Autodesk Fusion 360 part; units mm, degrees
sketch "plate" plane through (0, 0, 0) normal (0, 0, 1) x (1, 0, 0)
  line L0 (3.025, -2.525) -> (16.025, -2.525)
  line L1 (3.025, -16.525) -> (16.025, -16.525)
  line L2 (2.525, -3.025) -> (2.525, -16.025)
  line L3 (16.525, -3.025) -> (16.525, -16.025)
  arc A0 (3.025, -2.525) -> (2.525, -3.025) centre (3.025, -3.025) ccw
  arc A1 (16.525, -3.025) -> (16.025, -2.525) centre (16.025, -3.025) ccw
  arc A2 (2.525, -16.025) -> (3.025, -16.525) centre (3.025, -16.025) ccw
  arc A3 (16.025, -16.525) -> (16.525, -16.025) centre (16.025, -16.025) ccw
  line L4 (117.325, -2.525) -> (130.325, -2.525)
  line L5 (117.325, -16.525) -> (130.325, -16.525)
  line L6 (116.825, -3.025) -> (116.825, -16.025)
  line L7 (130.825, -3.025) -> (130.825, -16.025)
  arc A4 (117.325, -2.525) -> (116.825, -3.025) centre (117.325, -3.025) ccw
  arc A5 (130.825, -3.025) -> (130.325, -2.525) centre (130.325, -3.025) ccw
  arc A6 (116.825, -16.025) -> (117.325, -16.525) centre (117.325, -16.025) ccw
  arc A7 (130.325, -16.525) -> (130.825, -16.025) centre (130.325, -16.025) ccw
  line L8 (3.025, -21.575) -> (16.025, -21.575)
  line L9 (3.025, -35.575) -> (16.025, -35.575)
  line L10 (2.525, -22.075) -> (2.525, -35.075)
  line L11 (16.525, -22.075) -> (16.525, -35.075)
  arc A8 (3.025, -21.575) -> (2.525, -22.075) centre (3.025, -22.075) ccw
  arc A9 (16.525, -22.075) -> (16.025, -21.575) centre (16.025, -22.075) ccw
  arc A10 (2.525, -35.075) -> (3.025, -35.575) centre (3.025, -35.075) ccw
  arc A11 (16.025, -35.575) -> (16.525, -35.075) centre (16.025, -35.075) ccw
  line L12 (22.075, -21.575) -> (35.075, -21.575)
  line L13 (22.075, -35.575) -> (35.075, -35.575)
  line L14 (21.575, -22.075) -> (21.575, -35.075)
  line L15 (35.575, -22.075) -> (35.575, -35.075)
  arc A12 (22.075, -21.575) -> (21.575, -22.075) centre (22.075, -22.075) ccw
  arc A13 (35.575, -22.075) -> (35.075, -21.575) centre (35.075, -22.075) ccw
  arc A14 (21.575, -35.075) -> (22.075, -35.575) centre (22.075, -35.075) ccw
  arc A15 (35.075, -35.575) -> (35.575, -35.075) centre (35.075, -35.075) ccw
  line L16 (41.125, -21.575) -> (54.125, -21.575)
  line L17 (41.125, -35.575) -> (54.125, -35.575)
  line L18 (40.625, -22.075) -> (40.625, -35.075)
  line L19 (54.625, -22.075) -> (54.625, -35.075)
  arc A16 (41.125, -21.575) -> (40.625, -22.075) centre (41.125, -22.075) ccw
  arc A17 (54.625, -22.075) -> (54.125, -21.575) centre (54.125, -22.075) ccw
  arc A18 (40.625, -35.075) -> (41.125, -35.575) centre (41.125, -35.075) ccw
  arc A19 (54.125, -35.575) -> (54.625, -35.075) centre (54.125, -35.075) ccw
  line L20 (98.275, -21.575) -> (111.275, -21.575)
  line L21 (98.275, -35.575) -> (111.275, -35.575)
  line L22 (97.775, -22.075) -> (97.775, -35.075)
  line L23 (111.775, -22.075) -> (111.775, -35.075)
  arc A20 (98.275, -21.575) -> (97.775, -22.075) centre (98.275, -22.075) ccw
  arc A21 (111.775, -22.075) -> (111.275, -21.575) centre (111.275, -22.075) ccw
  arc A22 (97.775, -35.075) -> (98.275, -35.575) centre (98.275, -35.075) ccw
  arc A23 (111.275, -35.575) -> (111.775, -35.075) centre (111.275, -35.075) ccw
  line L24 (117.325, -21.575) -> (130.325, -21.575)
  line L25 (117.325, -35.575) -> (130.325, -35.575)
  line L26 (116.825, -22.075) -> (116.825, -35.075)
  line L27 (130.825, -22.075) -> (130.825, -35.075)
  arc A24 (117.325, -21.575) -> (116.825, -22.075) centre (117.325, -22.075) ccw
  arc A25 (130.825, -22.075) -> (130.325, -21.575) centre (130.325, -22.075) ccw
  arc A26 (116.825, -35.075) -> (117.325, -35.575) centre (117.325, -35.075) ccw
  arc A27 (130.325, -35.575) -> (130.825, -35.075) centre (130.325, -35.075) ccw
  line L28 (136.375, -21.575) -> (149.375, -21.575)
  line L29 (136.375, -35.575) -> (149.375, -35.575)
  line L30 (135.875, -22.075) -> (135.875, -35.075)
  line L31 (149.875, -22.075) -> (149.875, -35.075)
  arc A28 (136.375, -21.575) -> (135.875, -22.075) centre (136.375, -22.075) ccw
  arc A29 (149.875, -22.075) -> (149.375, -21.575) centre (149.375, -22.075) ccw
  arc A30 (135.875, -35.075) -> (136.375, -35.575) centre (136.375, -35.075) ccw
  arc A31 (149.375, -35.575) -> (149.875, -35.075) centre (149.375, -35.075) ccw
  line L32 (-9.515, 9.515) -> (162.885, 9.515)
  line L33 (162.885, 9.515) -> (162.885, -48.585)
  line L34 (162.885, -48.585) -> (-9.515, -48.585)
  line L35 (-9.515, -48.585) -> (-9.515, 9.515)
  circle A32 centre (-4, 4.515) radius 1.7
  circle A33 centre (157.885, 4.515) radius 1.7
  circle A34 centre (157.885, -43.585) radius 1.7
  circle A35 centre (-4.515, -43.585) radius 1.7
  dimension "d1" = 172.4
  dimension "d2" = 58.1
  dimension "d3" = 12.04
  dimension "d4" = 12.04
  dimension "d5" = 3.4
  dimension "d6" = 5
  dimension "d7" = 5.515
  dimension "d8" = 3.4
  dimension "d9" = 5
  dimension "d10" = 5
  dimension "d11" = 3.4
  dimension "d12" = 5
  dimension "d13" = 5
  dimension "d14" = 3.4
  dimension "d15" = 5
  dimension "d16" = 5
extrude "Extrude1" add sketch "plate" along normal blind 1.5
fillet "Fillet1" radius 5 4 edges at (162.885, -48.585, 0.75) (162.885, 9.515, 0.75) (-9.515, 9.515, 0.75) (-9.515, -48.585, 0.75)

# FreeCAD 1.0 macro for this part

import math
import FreeCAD as App
import Part
import Sketcher

V = App.Vector


def edges_at(feature, points):
    """Names of the edges that pass closest to the given points."""
    edges = feature.Shape.Edges
    near = lambda p: min(range(len(edges)), key=lambda i: edges[i].distToShape(Part.Vertex(*p))[0])
    return sorted({f"Edge{near(p) + 1}" for p in points})


def add_polygon(sketch, points):
    """Adds a closed chain of lines whose ends are joined by coincident constraints."""
    first, n = sketch.GeometryCount, len(points)
    for a, b in zip(points, points[1:] + points[:1]):
        sketch.addGeometry(Part.LineSegment(App.Vector(*a, 0), App.Vector(*b, 0)), False)
    for i in range(n):
        sketch.addConstraint(Sketcher.Constraint("Coincident", first + i, 2, first + (i + 1) % n, 1))

doc = App.newDocument("Part")
body = doc.addObject("PartDesign::Body", "Body")

# Sketch on XY plane
sketch1 = body.newObject("Sketcher::SketchObject", "Sketch")
sketch1.AttachmentSupport = (doc.getObject("XY_Plane"), [""])
sketch1.MapMode = "FlatFace"
add_polygon(sketch1, [(162.9, 9.5), (-9.5, 9.5), (-9.5, -48.6), (162.9, -48.6)])  # lines 0-3
sketch1.addGeometry(Part.Circle(V(-4.5, -43.6, 0), V(0, 0, 1), 1.7), False)  # 4
sketch1.addGeometry(Part.ArcOfCircle(Part.Circle(V(3, -22.1, 0), V(0, 0, 1), 0.5), math.radians(90), math.radians(180)), False)  # 5
sketch1.addGeometry(Part.LineSegment(V(3, -21.6, 0), V(16, -21.6, 0)), False)  # 6
sketch1.addGeometry(Part.ArcOfCircle(Part.Circle(V(16, -22.1, 0), V(0, 0, 1), 0.5), math.radians(0), math.radians(90)), False)  # 7
sketch1.addGeometry(Part.LineSegment(V(16.5, -22.1, 0), V(16.5, -35.1, 0)), False)  # 8
sketch1.addGeometry(Part.ArcOfCircle(Part.Circle(V(16, -35.1, 0), V(0, 0, 1), 0.5), math.radians(-90), math.radians(0)), False)  # 9
sketch1.addGeometry(Part.LineSegment(V(16, -35.6, 0), V(3, -35.6, 0)), False)  # 10
sketch1.addGeometry(Part.ArcOfCircle(Part.Circle(V(3, -35.1, 0), V(0, 0, 1), 0.5), math.radians(180), math.radians(270)), False)  # 11
sketch1.addGeometry(Part.LineSegment(V(2.5, -35.1, 0), V(2.5, -22.1, 0)), False)  # 12
sketch1.addGeometry(Part.ArcOfCircle(Part.Circle(V(22.1, -22.1, 0), V(0, 0, 1), 0.5), math.radians(90), math.radians(180)), False)  # 13
sketch1.addGeometry(Part.LineSegment(V(22.1, -21.6, 0), V(35.1, -21.6, 0)), False)  # 14
sketch1.addGeometry(Part.ArcOfCircle(Part.Circle(V(35.1, -22.1, 0), V(0, 0, 1), 0.5), math.radians(0), math.radians(90)), False)  # 15
sketch1.addGeometry(Part.LineSegment(V(35.6, -22.1, 0), V(35.6, -35.1, 0)), False)  # 16
sketch1.addGeometry(Part.ArcOfCircle(Part.Circle(V(35.1, -35.1, 0), V(0, 0, 1), 0.5), math.radians(-90), math.radians(0)), False)  # 17
sketch1.addGeometry(Part.LineSegment(V(35.1, -35.6, 0), V(22.1, -35.6, 0)), False)  # 18
sketch1.addGeometry(Part.ArcOfCircle(Part.Circle(V(22.1, -35.1, 0), V(0, 0, 1), 0.5), math.radians(180), math.radians(270)), False)  # 19
sketch1.addGeometry(Part.LineSegment(V(21.6, -35.1, 0), V(21.6, -22.1, 0)), False)  # 20
sketch1.addGeometry(Part.ArcOfCircle(Part.Circle(V(41.1, -22.1, 0), V(0, 0, 1), 0.5), math.radians(90), math.radians(180)), False)  # 21
sketch1.addGeometry(Part.LineSegment(V(41.1, -21.6, 0), V(54.1, -21.6, 0)), False)  # 22
sketch1.addGeometry(Part.ArcOfCircle(Part.Circle(V(54.1, -22.1, 0), V(0, 0, 1), 0.5), math.radians(0), math.radians(90)), False)  # 23
sketch1.addGeometry(Part.LineSegment(V(54.6, -22.1, 0), V(54.6, -35.1, 0)), False)  # 24
sketch1.addGeometry(Part.ArcOfCircle(Part.Circle(V(54.1, -35.1, 0), V(0, 0, 1), 0.5), math.radians(-90), math.radians(0)), False)  # 25
sketch1.addGeometry(Part.LineSegment(V(54.1, -35.6, 0), V(41.1, -35.6, 0)), False)  # 26
sketch1.addGeometry(Part.ArcOfCircle(Part.Circle(V(41.1, -35.1, 0), V(0, 0, 1), 0.5), math.radians(180), math.radians(270)), False)  # 27
sketch1.addGeometry(Part.LineSegment(V(40.6, -35.1, 0), V(40.6, -22.1, 0)), False)  # 28
sketch1.addGeometry(Part.Circle(V(157.9, -43.6, 0), V(0, 0, 1), 1.7), False)  # 29
sketch1.addGeometry(Part.ArcOfCircle(Part.Circle(V(98.3, -22.1, 0), V(0, 0, 1), 0.5), math.radians(90), math.radians(180)), False)  # 30
sketch1.addGeometry(Part.LineSegment(V(98.3, -21.6, 0), V(111.3, -21.6, 0)), False)  # 31
sketch1.addGeometry(Part.ArcOfCircle(Part.Circle(V(111.3, -22.1, 0), V(0, 0, 1), 0.5), math.radians(0), math.radians(90)), False)  # 32
sketch1.addGeometry(Part.LineSegment(V(111.8, -22.1, 0), V(111.8, -35.1, 0)), False)  # 33
sketch1.addGeometry(Part.ArcOfCircle(Part.Circle(V(111.3, -35.1, 0), V(0, 0, 1), 0.5), math.radians(-90), math.radians(0)), False)  # 34
sketch1.addGeometry(Part.LineSegment(V(111.3, -35.6, 0), V(98.3, -35.6, 0)), False)  # 35
sketch1.addGeometry(Part.ArcOfCircle(Part.Circle(V(98.3, -35.1, 0), V(0, 0, 1), 0.5), math.radians(180), math.radians(270)), False)  # 36
sketch1.addGeometry(Part.LineSegment(V(97.8, -35.1, 0), V(97.8, -22.1, 0)), False)  # 37
sketch1.addGeometry(Part.ArcOfCircle(Part.Circle(V(117.3, -22.1, 0), V(0, 0, 1), 0.5), math.radians(90), math.radians(180)), False)  # 38
sketch1.addGeometry(Part.LineSegment(V(117.3, -21.6, 0), V(130.3, -21.6, 0)), False)  # 39
sketch1.addGeometry(Part.ArcOfCircle(Part.Circle(V(130.3, -22.1, 0), V(0, 0, 1), 0.5), math.radians(0), math.radians(90)), False)  # 40
sketch1.addGeometry(Part.LineSegment(V(130.8, -22.1, 0), V(130.8, -35.1, 0)), False)  # 41
sketch1.addGeometry(Part.ArcOfCircle(Part.Circle(V(130.3, -35.1, 0), V(0, 0, 1), 0.5), math.radians(-90), math.radians(0)), False)  # 42
sketch1.addGeometry(Part.LineSegment(V(130.3, -35.6, 0), V(117.3, -35.6, 0)), False)  # 43
sketch1.addGeometry(Part.ArcOfCircle(Part.Circle(V(117.3, -35.1, 0), V(0, 0, 1), 0.5), math.radians(180), math.radians(270)), False)  # 44
sketch1.addGeometry(Part.LineSegment(V(116.8, -35.1, 0), V(116.8, -22.1, 0)), False)  # 45
sketch1.addGeometry(Part.ArcOfCircle(Part.Circle(V(136.4, -22.1, 0), V(0, 0, 1), 0.5), math.radians(90), math.radians(180)), False)  # 46
sketch1.addGeometry(Part.LineSegment(V(136.4, -21.6, 0), V(149.4, -21.6, 0)), False)  # 47
sketch1.addGeometry(Part.ArcOfCircle(Part.Circle(V(149.4, -22.1, 0), V(0, 0, 1), 0.5), math.radians(0), math.radians(90)), False)  # 48
sketch1.addGeometry(Part.LineSegment(V(149.9, -22.1, 0), V(149.9, -35.1, 0)), False)  # 49
sketch1.addGeometry(Part.ArcOfCircle(Part.Circle(V(149.4, -35.1, 0), V(0, 0, 1), 0.5), math.radians(-90), math.radians(0)), False)  # 50
sketch1.addGeometry(Part.LineSegment(V(149.4, -35.6, 0), V(136.4, -35.6, 0)), False)  # 51
sketch1.addGeometry(Part.ArcOfCircle(Part.Circle(V(136.4, -35.1, 0), V(0, 0, 1), 0.5), math.radians(180), math.radians(270)), False)  # 52
sketch1.addGeometry(Part.LineSegment(V(135.9, -35.1, 0), V(135.9, -22.1, 0)), False)  # 53
sketch1.addGeometry(Part.ArcOfCircle(Part.Circle(V(3, -3, 0), V(0, 0, 1), 0.5), math.radians(90), math.radians(180)), False)  # 54
sketch1.addGeometry(Part.LineSegment(V(3, -2.5, 0), V(16, -2.5, 0)), False)  # 55
sketch1.addGeometry(Part.ArcOfCircle(Part.Circle(V(16, -3, 0), V(0, 0, 1), 0.5), math.radians(0), math.radians(90)), False)  # 56
sketch1.addGeometry(Part.LineSegment(V(16.5, -3, 0), V(16.5, -16, 0)), False)  # 57
sketch1.addGeometry(Part.ArcOfCircle(Part.Circle(V(16, -16, 0), V(0, 0, 1), 0.5), math.radians(-90), math.radians(0)), False)  # 58
sketch1.addGeometry(Part.LineSegment(V(16, -16.5, 0), V(3, -16.5, 0)), False)  # 59
sketch1.addGeometry(Part.ArcOfCircle(Part.Circle(V(3, -16, 0), V(0, 0, 1), 0.5), math.radians(180), math.radians(270)), False)  # 60
sketch1.addGeometry(Part.LineSegment(V(2.5, -16, 0), V(2.5, -3, 0)), False)  # 61
sketch1.addGeometry(Part.Circle(V(-4, 4.5, 0), V(0, 0, 1), 1.7), False)  # 62
sketch1.addGeometry(Part.ArcOfCircle(Part.Circle(V(117.3, -3, 0), V(0, 0, 1), 0.5), math.radians(90), math.radians(180)), False)  # 63
sketch1.addGeometry(Part.LineSegment(V(117.3, -2.5, 0), V(130.3, -2.5, 0)), False)  # 64
sketch1.addGeometry(Part.ArcOfCircle(Part.Circle(V(130.3, -3, 0), V(0, 0, 1), 0.5), math.radians(0), math.radians(90)), False)  # 65
sketch1.addGeometry(Part.LineSegment(V(130.8, -3, 0), V(130.8, -16, 0)), False)  # 66
sketch1.addGeometry(Part.ArcOfCircle(Part.Circle(V(130.3, -16, 0), V(0, 0, 1), 0.5), math.radians(-90), math.radians(0)), False)  # 67
sketch1.addGeometry(Part.LineSegment(V(130.3, -16.5, 0), V(117.3, -16.5, 0)), False)  # 68
sketch1.addGeometry(Part.ArcOfCircle(Part.Circle(V(117.3, -16, 0), V(0, 0, 1), 0.5), math.radians(180), math.radians(270)), False)  # 69
sketch1.addGeometry(Part.LineSegment(V(116.8, -16, 0), V(116.8, -3, 0)), False)  # 70
sketch1.addGeometry(Part.Circle(V(157.9, 4.5, 0), V(0, 0, 1), 1.7), False)  # 71
sketch1.addConstraint(Sketcher.Constraint("Tangent", 5, 1, 6, 1))
sketch1.addConstraint(Sketcher.Constraint("Tangent", 6, 2, 7, 2))
sketch1.addConstraint(Sketcher.Constraint("Tangent", 7, 1, 8, 1))
sketch1.addConstraint(Sketcher.Constraint("Tangent", 8, 2, 9, 2))
sketch1.addConstraint(Sketcher.Constraint("Tangent", 9, 1, 10, 1))
sketch1.addConstraint(Sketcher.Constraint("Tangent", 10, 2, 11, 2))
sketch1.addConstraint(Sketcher.Constraint("Tangent", 11, 1, 12, 1))
sketch1.addConstraint(Sketcher.Constraint("Tangent", 12, 2, 5, 2))
sketch1.addConstraint(Sketcher.Constraint("Tangent", 13, 1, 14, 1))
sketch1.addConstraint(Sketcher.Constraint("Tangent", 14, 2, 15, 2))
sketch1.addConstraint(Sketcher.Constraint("Tangent", 15, 1, 16, 1))
sketch1.addConstraint(Sketcher.Constraint("Tangent", 16, 2, 17, 2))
sketch1.addConstraint(Sketcher.Constraint("Tangent", 17, 1, 18, 1))
sketch1.addConstraint(Sketcher.Constraint("Tangent", 18, 2, 19, 2))
sketch1.addConstraint(Sketcher.Constraint("Tangent", 19, 1, 20, 1))
sketch1.addConstraint(Sketcher.Constraint("Tangent", 20, 2, 13, 2))
sketch1.addConstraint(Sketcher.Constraint("Tangent", 21, 1, 22, 1))
sketch1.addConstraint(Sketcher.Constraint("Tangent", 22, 2, 23, 2))
sketch1.addConstraint(Sketcher.Constraint("Tangent", 23, 1, 24, 1))
sketch1.addConstraint(Sketcher.Constraint("Tangent", 24, 2, 25, 2))
sketch1.addConstraint(Sketcher.Constraint("Tangent", 25, 1, 26, 1))
sketch1.addConstraint(Sketcher.Constraint("Tangent", 26, 2, 27, 2))
sketch1.addConstraint(Sketcher.Constraint("Tangent", 27, 1, 28, 1))
sketch1.addConstraint(Sketcher.Constraint("Tangent", 28, 2, 21, 2))
sketch1.addConstraint(Sketcher.Constraint("Tangent", 30, 1, 31, 1))
sketch1.addConstraint(Sketcher.Constraint("Tangent", 31, 2, 32, 2))
sketch1.addConstraint(Sketcher.Constraint("Tangent", 32, 1, 33, 1))
sketch1.addConstraint(Sketcher.Constraint("Tangent", 33, 2, 34, 2))
sketch1.addConstraint(Sketcher.Constraint("Tangent", 34, 1, 35, 1))
sketch1.addConstraint(Sketcher.Constraint("Tangent", 35, 2, 36, 2))
sketch1.addConstraint(Sketcher.Constraint("Tangent", 36, 1, 37, 1))
sketch1.addConstraint(Sketcher.Constraint("Tangent", 37, 2, 30, 2))
sketch1.addConstraint(Sketcher.Constraint("Tangent", 38, 1, 39, 1))
sketch1.addConstraint(Sketcher.Constraint("Tangent", 39, 2, 40, 2))
sketch1.addConstraint(Sketcher.Constraint("Tangent", 40, 1, 41, 1))
sketch1.addConstraint(Sketcher.Constraint("Tangent", 41, 2, 42, 2))
sketch1.addConstraint(Sketcher.Constraint("Tangent", 42, 1, 43, 1))
sketch1.addConstraint(Sketcher.Constraint("Tangent", 43, 2, 44, 2))
sketch1.addConstraint(Sketcher.Constraint("Tangent", 44, 1, 45, 1))
sketch1.addConstraint(Sketcher.Constraint("Tangent", 45, 2, 38, 2))
sketch1.addConstraint(Sketcher.Constraint("Tangent", 46, 1, 47, 1))
sketch1.addConstraint(Sketcher.Constraint("Tangent", 47, 2, 48, 2))
sketch1.addConstraint(Sketcher.Constraint("Tangent", 48, 1, 49, 1))
sketch1.addConstraint(Sketcher.Constraint("Tangent", 49, 2, 50, 2))
sketch1.addConstraint(Sketcher.Constraint("Tangent", 50, 1, 51, 1))
sketch1.addConstraint(Sketcher.Constraint("Tangent", 51, 2, 52, 2))
sketch1.addConstraint(Sketcher.Constraint("Tangent", 52, 1, 53, 1))
sketch1.addConstraint(Sketcher.Constraint("Tangent", 53, 2, 46, 2))
sketch1.addConstraint(Sketcher.Constraint("Tangent", 54, 1, 55, 1))
sketch1.addConstraint(Sketcher.Constraint("Tangent", 55, 2, 56, 2))
sketch1.addConstraint(Sketcher.Constraint("Tangent", 56, 1, 57, 1))
sketch1.addConstraint(Sketcher.Constraint("Tangent", 57, 2, 58, 2))
sketch1.addConstraint(Sketcher.Constraint("Tangent", 58, 1, 59, 1))
sketch1.addConstraint(Sketcher.Constraint("Tangent", 59, 2, 60, 2))
sketch1.addConstraint(Sketcher.Constraint("Tangent", 60, 1, 61, 1))
sketch1.addConstraint(Sketcher.Constraint("Tangent", 61, 2, 54, 2))
sketch1.addConstraint(Sketcher.Constraint("Tangent", 63, 1, 64, 1))
sketch1.addConstraint(Sketcher.Constraint("Tangent", 64, 2, 65, 2))
sketch1.addConstraint(Sketcher.Constraint("Tangent", 65, 1, 66, 1))
sketch1.addConstraint(Sketcher.Constraint("Tangent", 66, 2, 67, 2))
sketch1.addConstraint(Sketcher.Constraint("Tangent", 67, 1, 68, 1))
sketch1.addConstraint(Sketcher.Constraint("Tangent", 68, 2, 69, 2))
sketch1.addConstraint(Sketcher.Constraint("Tangent", 69, 1, 70, 1))
sketch1.addConstraint(Sketcher.Constraint("Tangent", 70, 2, 63, 2))
sketch1.addConstraint(Sketcher.Constraint("Horizontal", 0))
sketch1.addConstraint(Sketcher.Constraint("Vertical", 1))
sketch1.addConstraint(Sketcher.Constraint("Horizontal", 2))
sketch1.addConstraint(Sketcher.Constraint("Vertical", 3))
sketch1.addConstraint(Sketcher.Constraint("Horizontal", 6))
sketch1.addConstraint(Sketcher.Constraint("Vertical", 8))
sketch1.addConstraint(Sketcher.Constraint("Horizontal", 10))
sketch1.addConstraint(Sketcher.Constraint("Vertical", 12))
sketch1.addConstraint(Sketcher.Constraint("Horizontal", 14))
sketch1.addConstraint(Sketcher.Constraint("Vertical", 16))
sketch1.addConstraint(Sketcher.Constraint("Horizontal", 18))
sketch1.addConstraint(Sketcher.Constraint("Vertical", 20))
sketch1.addConstraint(Sketcher.Constraint("Horizontal", 22))
sketch1.addConstraint(Sketcher.Constraint("Vertical", 24))
sketch1.addConstraint(Sketcher.Constraint("Horizontal", 26))
sketch1.addConstraint(Sketcher.Constraint("Vertical", 28))
sketch1.addConstraint(Sketcher.Constraint("Horizontal", 31))
sketch1.addConstraint(Sketcher.Constraint("Vertical", 33))
sketch1.addConstraint(Sketcher.Constraint("Horizontal", 35))
sketch1.addConstraint(Sketcher.Constraint("Vertical", 37))
sketch1.addConstraint(Sketcher.Constraint("Horizontal", 39))
sketch1.addConstraint(Sketcher.Constraint("Vertical", 41))
sketch1.addConstraint(Sketcher.Constraint("Horizontal", 43))
sketch1.addConstraint(Sketcher.Constraint("Vertical", 45))
sketch1.addConstraint(Sketcher.Constraint("Horizontal", 47))
sketch1.addConstraint(Sketcher.Constraint("Vertical", 49))
sketch1.addConstraint(Sketcher.Constraint("Horizontal", 51))
sketch1.addConstraint(Sketcher.Constraint("Vertical", 53))
sketch1.addConstraint(Sketcher.Constraint("Horizontal", 55))
sketch1.addConstraint(Sketcher.Constraint("Vertical", 57))
sketch1.addConstraint(Sketcher.Constraint("Horizontal", 59))
sketch1.addConstraint(Sketcher.Constraint("Vertical", 61))
sketch1.addConstraint(Sketcher.Constraint("Horizontal", 64))
sketch1.addConstraint(Sketcher.Constraint("Vertical", 66))
sketch1.addConstraint(Sketcher.Constraint("Horizontal", 68))
sketch1.addConstraint(Sketcher.Constraint("Vertical", 70))
sketch1.addConstraint(Sketcher.Constraint("Equal", 5, 7))
sketch1.addConstraint(Sketcher.Constraint("Equal", 7, 9))
sketch1.addConstraint(Sketcher.Constraint("Equal", 9, 11))
sketch1.addConstraint(Sketcher.Constraint("Equal", 11, 13))
sketch1.addConstraint(Sketcher.Constraint("Equal", 13, 15))
sketch1.addConstraint(Sketcher.Constraint("Equal", 15, 17))
sketch1.addConstraint(Sketcher.Constraint("Equal", 17, 19))
sketch1.addConstraint(Sketcher.Constraint("Equal", 19, 21))
sketch1.addConstraint(Sketcher.Constraint("Equal", 21, 23))
sketch1.addConstraint(Sketcher.Constraint("Equal", 23, 25))
sketch1.addConstraint(Sketcher.Constraint("Equal", 25, 27))
sketch1.addConstraint(Sketcher.Constraint("Equal", 4, 29))
sketch1.addConstraint(Sketcher.Constraint("Equal", 27, 30))
sketch1.addConstraint(Sketcher.Constraint("Equal", 30, 32))
sketch1.addConstraint(Sketcher.Constraint("Equal", 32, 34))
sketch1.addConstraint(Sketcher.Constraint("Equal", 34, 36))
sketch1.addConstraint(Sketcher.Constraint("Equal", 36, 38))
sketch1.addConstraint(Sketcher.Constraint("Equal", 38, 40))
sketch1.addConstraint(Sketcher.Constraint("Equal", 40, 42))
sketch1.addConstraint(Sketcher.Constraint("Equal", 42, 44))
sketch1.addConstraint(Sketcher.Constraint("Equal", 44, 46))
sketch1.addConstraint(Sketcher.Constraint("Equal", 46, 48))
sketch1.addConstraint(Sketcher.Constraint("Equal", 48, 50))
sketch1.addConstraint(Sketcher.Constraint("Equal", 50, 52))
sketch1.addConstraint(Sketcher.Constraint("Equal", 52, 54))
sketch1.addConstraint(Sketcher.Constraint("Equal", 54, 56))
sketch1.addConstraint(Sketcher.Constraint("Equal", 56, 58))
sketch1.addConstraint(Sketcher.Constraint("Equal", 58, 60))
sketch1.addConstraint(Sketcher.Constraint("Equal", 29, 62))
sketch1.addConstraint(Sketcher.Constraint("Equal", 60, 63))
sketch1.addConstraint(Sketcher.Constraint("Equal", 63, 65))
sketch1.addConstraint(Sketcher.Constraint("Equal", 65, 67))
sketch1.addConstraint(Sketcher.Constraint("Equal", 67, 69))
sketch1.addConstraint(Sketcher.Constraint("Equal", 62, 71))
sketch1.addConstraint(Sketcher.Constraint("Horizontal", 7, 3, 13, 3))
sketch1.addConstraint(Sketcher.Constraint("Horizontal", 11, 3, 17, 3))
sketch1.addConstraint(Sketcher.Constraint("Horizontal", 15, 3, 21, 3))
sketch1.addConstraint(Sketcher.Constraint("Horizontal", 19, 3, 25, 3))
sketch1.addConstraint(Sketcher.Constraint("Horizontal", 4, 3, 29, 3))
sketch1.addConstraint(Sketcher.Constraint("Horizontal", 23, 3, 30, 3))
sketch1.addConstraint(Sketcher.Constraint("Horizontal", 27, 3, 34, 3))
sketch1.addConstraint(Sketcher.Constraint("Horizontal", 32, 3, 38, 3))
sketch1.addConstraint(Sketcher.Constraint("Horizontal", 36, 3, 42, 3))
sketch1.addConstraint(Sketcher.Constraint("Horizontal", 40, 3, 46, 3))
sketch1.addConstraint(Sketcher.Constraint("Horizontal", 44, 3, 50, 3))
sketch1.addConstraint(Sketcher.Constraint("Horizontal", 56, 3, 63, 3))
sketch1.addConstraint(Sketcher.Constraint("Horizontal", 60, 3, 67, 3))
sketch1.addConstraint(Sketcher.Constraint("Horizontal", 62, 3, 71, 3))
sketch1.addConstraint(Sketcher.Constraint("Vertical", 11, 3, 54, 3))
sketch1.addConstraint(Sketcher.Constraint("Vertical", 9, 3, 56, 3))
sketch1.addConstraint(Sketcher.Constraint("Vertical", 44, 3, 63, 3))
sketch1.addConstraint(Sketcher.Constraint("Vertical", 42, 3, 65, 3))
sketch1.addConstraint(Sketcher.Constraint("Vertical", 29, 3, 71, 3))
sketch1.addConstraint(Sketcher.Constraint("Equal", 10, 14))
sketch1.addConstraint(Sketcher.Constraint("Equal", 18, 22))
sketch1.addConstraint(Sketcher.Constraint("Equal", 26, 31))
sketch1.addConstraint(Sketcher.Constraint("Equal", 35, 39))
sketch1.addConstraint(Sketcher.Constraint("Equal", 43, 47))
sketch1.addConstraint(Sketcher.Constraint("Equal", 68, 8))
sketch1.addConstraint(Sketcher.Constraint("Equal", 53, 57))
sketch1.addConstraint(Sketcher.Constraint("Diameter", 4, 3.4))
sketch1.addConstraint(Sketcher.Constraint("DistanceX", 0, 2, 0, 1, 172.4))
sketch1.addConstraint(Sketcher.Constraint("DistanceY", 1, 2, 1, 1, 58.1))
sketch1.addConstraint(Sketcher.Constraint("Radius", 5, 0.5))
sketch1.addConstraint(Sketcher.Constraint("DistanceX", 6, 1, 6, 2, 13.0))
sketch1.addConstraint(Sketcher.Constraint("DistanceX", 62, 3, -1, 1, 4.0))
sketch1.addConstraint(Sketcher.Constraint("DistanceX", 4, 3, -1, 1, 4.515))
sketch1.addConstraint(Sketcher.Constraint("DistanceY", 4, 3, -1, 1, 43.585))
sketch1.addConstraint(Sketcher.Constraint("DistanceX", -1, 1, 5, 3, 3.025))
sketch1.addConstraint(Sketcher.Constraint("DistanceY", 5, 3, -1, 1, 22.075))
sketch1.addConstraint(Sketcher.Constraint("DistanceX", -1, 1, 13, 3, 22.075))
sketch1.addConstraint(Sketcher.Constraint("DistanceX", -1, 1, 21, 3, 41.125))
sketch1.addConstraint(Sketcher.Constraint("DistanceX", -1, 1, 29, 3, 157.885))
sketch1.addConstraint(Sketcher.Constraint("DistanceX", -1, 1, 30, 3, 98.275))
sketch1.addConstraint(Sketcher.Constraint("DistanceX", -1, 1, 38, 3, 117.325))
sketch1.addConstraint(Sketcher.Constraint("DistanceX", -1, 1, 46, 3, 136.375))
sketch1.addConstraint(Sketcher.Constraint("DistanceY", 54, 3, -1, 1, 3.025))
sketch1.addConstraint(Sketcher.Constraint("DistanceY", -1, 1, 62, 3, 4.515))
sketch1.addConstraint(Sketcher.Constraint("DistanceX", 0, 2, -1, 1, 9.515))
sketch1.addConstraint(Sketcher.Constraint("DistanceY", -1, 1, 0, 2, 9.515))
pad1 = body.newObject("PartDesign::Pad", "Pad")
pad1.Profile = sketch1
pad1.Length = 1.5
doc.recompute()

fillet = body.newObject("PartDesign::Fillet", "Fillet")
fillet.Base = (pad1, edges_at(pad1, [
    (162.885, -48.585, 0.75),
    (162.885, 9.515, 0.75),
    (-9.515, 9.515, 0.75),
    (-9.515, -48.585, 0.75),
]))
fillet.Radius = 5

doc.recompute()
